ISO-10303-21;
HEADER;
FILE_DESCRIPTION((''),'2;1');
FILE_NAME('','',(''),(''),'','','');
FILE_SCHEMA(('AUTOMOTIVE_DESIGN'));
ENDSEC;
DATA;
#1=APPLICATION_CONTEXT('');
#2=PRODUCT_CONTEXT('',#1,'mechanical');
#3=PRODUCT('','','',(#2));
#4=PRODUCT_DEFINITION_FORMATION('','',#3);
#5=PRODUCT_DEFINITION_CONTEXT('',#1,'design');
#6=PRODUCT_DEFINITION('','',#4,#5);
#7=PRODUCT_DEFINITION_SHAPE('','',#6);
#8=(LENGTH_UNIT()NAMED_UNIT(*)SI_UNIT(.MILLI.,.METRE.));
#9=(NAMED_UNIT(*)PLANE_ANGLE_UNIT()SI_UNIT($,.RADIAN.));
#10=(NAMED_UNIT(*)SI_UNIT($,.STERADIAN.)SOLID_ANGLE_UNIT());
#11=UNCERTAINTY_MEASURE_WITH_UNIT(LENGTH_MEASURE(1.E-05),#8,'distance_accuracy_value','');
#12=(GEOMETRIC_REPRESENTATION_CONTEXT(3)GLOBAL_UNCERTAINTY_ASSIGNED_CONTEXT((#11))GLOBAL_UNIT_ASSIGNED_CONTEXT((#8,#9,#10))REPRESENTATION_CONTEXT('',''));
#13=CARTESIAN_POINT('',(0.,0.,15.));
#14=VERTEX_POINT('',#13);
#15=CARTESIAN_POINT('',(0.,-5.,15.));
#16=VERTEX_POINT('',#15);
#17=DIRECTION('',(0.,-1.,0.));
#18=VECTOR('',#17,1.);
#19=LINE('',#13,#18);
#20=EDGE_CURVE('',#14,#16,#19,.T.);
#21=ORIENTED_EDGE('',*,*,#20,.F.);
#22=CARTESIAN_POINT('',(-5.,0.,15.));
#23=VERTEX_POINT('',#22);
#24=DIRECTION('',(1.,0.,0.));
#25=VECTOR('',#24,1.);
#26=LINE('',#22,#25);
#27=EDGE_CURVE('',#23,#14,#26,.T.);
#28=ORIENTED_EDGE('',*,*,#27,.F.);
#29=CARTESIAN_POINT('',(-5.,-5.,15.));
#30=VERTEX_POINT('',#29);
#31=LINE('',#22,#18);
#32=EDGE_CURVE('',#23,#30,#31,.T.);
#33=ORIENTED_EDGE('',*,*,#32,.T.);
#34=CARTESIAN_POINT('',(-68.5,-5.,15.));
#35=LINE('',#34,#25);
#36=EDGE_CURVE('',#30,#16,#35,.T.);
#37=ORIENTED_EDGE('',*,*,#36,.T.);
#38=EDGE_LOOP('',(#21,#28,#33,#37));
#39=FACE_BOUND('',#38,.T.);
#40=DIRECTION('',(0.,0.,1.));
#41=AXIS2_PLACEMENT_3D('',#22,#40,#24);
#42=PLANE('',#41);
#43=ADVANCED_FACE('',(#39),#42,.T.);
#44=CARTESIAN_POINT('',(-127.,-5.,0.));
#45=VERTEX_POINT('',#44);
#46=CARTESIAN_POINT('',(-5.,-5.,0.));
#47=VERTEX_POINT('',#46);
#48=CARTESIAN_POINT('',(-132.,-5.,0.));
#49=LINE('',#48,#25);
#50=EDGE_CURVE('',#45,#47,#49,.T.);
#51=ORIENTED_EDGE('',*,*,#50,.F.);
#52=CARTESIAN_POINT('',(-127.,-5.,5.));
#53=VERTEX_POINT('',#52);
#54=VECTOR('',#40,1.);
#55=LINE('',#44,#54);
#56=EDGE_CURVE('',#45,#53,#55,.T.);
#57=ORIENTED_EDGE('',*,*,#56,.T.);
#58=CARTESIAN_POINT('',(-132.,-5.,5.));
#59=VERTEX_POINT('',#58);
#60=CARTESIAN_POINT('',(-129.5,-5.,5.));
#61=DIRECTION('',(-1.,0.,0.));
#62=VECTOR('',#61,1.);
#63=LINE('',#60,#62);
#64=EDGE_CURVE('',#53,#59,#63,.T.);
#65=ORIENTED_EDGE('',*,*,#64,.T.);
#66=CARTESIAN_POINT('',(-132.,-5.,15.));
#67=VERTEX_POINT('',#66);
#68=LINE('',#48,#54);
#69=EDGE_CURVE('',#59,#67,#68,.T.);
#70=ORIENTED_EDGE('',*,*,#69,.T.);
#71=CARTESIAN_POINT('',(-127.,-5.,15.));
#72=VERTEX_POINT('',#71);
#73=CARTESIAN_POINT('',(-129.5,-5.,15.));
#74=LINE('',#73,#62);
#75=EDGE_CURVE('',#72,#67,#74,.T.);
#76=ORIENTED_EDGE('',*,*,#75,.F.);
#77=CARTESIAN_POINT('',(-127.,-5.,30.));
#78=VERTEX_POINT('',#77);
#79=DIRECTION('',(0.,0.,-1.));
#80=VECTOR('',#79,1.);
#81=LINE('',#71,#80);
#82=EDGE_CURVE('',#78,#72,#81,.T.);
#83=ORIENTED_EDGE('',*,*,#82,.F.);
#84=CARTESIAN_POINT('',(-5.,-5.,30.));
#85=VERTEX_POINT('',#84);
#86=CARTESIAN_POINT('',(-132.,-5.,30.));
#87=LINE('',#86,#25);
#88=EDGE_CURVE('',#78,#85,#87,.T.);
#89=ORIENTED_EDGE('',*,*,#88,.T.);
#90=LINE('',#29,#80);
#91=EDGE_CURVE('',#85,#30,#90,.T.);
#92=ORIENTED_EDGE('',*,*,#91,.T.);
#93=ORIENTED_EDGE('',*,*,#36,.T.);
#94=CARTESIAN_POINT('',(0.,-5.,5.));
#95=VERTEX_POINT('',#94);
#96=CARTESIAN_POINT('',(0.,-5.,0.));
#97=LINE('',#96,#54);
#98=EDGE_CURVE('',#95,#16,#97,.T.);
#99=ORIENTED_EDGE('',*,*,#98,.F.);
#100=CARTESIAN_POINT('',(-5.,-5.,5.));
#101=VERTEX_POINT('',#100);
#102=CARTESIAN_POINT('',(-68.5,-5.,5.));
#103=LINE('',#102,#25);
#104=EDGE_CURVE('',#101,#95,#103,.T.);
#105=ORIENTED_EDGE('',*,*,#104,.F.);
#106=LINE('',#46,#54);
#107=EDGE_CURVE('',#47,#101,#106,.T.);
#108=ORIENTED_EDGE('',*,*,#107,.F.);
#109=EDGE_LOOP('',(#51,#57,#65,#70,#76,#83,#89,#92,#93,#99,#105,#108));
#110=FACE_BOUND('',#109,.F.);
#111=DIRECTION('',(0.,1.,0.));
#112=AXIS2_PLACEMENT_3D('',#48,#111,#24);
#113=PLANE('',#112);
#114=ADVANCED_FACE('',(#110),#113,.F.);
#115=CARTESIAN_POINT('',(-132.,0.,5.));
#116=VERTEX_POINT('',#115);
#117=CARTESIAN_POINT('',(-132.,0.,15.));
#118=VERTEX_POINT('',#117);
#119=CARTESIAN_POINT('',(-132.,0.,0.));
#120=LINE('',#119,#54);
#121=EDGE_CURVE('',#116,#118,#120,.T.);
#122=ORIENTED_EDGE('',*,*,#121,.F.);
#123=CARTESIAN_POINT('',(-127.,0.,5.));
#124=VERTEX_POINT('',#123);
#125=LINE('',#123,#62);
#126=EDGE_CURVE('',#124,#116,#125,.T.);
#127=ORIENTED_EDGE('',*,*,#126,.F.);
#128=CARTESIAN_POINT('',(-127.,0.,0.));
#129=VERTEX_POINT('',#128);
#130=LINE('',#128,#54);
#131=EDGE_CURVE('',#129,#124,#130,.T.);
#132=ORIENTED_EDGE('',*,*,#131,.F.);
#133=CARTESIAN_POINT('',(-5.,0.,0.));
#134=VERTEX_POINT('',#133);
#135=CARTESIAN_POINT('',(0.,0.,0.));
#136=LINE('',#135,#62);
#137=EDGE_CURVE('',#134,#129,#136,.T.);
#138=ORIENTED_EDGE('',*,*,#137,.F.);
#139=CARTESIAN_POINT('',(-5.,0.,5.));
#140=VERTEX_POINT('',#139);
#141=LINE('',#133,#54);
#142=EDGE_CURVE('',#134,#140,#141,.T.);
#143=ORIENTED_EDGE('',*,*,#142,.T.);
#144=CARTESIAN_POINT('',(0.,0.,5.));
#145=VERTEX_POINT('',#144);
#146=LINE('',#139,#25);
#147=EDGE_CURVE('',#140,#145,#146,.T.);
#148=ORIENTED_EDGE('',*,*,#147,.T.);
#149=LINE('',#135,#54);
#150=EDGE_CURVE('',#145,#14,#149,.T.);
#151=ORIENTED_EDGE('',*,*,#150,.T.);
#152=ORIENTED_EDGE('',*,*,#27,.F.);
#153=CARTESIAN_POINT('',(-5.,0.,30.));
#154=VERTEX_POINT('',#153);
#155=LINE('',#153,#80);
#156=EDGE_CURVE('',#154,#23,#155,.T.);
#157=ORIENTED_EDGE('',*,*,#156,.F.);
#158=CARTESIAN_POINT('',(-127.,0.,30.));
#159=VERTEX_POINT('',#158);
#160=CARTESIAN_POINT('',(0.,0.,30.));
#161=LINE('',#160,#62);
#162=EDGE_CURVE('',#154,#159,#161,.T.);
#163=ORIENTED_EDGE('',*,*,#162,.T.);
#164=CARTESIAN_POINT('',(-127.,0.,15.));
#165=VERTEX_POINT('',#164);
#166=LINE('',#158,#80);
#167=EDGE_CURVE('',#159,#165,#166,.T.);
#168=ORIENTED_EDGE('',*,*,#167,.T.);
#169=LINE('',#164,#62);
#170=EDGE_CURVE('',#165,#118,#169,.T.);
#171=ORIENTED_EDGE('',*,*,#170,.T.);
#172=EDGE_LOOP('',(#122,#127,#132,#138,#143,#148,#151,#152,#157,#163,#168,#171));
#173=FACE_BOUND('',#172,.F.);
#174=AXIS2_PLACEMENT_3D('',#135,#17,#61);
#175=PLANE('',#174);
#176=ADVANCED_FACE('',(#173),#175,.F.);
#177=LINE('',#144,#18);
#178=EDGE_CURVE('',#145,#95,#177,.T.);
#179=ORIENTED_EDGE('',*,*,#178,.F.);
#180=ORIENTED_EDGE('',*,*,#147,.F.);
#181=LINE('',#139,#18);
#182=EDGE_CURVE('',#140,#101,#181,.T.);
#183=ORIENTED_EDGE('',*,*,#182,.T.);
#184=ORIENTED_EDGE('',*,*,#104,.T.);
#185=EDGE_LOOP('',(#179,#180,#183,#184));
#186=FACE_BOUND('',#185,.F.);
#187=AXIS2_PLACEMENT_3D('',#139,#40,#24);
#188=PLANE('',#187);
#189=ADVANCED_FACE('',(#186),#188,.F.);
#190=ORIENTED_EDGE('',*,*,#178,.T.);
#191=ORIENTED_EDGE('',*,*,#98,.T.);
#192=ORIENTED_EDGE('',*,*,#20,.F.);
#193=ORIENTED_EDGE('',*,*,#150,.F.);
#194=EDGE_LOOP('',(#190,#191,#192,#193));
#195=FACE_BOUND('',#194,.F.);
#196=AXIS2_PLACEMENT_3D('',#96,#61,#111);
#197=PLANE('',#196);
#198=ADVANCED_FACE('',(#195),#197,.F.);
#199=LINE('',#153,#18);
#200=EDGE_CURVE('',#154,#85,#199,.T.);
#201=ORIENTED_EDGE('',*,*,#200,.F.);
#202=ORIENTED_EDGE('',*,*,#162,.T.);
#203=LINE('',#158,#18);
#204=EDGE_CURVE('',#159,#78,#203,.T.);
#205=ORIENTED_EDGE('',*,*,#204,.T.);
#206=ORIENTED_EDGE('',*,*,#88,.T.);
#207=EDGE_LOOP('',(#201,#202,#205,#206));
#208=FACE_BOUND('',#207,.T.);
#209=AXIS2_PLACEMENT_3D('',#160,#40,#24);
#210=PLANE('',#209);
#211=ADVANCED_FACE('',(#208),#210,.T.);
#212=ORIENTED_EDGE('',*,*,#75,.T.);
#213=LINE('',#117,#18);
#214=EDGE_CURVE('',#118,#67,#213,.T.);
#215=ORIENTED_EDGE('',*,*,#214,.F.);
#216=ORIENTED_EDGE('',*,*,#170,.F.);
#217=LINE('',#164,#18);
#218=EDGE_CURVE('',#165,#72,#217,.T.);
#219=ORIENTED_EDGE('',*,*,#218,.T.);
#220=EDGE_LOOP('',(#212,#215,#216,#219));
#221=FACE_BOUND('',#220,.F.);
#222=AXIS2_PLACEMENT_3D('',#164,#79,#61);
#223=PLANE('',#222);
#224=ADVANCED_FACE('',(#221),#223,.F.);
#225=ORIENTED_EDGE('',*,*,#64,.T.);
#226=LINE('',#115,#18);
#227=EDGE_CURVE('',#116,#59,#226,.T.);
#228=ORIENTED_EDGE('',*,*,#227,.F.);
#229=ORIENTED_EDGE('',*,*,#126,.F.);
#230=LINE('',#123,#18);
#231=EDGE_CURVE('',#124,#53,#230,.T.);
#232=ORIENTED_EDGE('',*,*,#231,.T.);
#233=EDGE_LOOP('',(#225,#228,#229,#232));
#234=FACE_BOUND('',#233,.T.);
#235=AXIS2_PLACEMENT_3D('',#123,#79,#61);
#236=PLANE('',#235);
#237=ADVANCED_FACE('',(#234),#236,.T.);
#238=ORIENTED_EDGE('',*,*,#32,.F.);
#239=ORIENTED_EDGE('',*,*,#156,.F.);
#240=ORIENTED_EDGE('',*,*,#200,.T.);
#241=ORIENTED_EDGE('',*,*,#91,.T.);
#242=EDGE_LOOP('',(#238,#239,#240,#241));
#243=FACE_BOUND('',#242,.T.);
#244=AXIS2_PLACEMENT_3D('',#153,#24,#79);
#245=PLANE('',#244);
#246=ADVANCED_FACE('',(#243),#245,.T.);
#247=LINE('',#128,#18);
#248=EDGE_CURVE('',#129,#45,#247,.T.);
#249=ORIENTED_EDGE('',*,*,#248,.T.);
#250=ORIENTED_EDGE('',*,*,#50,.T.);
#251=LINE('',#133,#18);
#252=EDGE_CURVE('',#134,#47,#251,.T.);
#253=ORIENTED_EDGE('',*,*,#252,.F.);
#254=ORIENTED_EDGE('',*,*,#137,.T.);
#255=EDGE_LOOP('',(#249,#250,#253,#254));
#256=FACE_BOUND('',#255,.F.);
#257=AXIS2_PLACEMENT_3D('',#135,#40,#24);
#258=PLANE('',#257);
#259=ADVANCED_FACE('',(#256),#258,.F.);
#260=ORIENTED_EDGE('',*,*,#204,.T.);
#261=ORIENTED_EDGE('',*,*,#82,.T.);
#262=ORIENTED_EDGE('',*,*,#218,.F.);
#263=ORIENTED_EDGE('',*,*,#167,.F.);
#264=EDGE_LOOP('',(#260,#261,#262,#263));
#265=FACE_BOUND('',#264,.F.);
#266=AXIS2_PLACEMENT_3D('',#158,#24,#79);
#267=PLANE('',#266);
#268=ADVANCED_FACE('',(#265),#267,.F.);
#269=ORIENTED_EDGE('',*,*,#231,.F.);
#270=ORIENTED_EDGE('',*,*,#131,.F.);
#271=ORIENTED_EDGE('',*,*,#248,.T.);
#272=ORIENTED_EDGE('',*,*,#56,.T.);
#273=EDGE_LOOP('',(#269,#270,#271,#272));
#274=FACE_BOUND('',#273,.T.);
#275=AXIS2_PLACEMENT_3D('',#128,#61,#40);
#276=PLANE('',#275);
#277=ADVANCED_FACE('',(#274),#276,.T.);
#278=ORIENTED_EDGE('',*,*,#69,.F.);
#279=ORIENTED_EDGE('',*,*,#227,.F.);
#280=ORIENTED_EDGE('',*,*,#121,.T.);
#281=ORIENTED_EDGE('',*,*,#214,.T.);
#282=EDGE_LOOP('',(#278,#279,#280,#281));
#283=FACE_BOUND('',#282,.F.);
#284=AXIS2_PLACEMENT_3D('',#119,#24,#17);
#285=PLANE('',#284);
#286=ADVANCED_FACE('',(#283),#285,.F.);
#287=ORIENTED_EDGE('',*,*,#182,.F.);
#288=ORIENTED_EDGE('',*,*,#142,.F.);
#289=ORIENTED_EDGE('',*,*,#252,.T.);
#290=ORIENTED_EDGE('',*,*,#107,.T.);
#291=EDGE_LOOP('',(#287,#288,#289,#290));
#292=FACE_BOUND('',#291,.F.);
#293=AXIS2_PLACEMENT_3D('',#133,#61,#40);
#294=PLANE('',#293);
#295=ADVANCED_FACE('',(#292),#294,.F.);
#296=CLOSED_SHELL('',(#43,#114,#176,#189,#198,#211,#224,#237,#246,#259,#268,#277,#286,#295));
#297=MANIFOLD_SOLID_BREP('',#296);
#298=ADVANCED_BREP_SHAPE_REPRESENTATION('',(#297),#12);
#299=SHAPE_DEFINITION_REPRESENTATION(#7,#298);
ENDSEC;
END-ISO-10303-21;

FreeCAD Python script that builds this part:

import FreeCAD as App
import Part
import Sketcher
from FreeCAD import Vector

doc = App.newDocument("Part")
body = doc.addObject("PartDesign::Body", "Body")

sketch1 = body.newObject("Sketcher::SketchObject", "Sketch")
sketch1.AttachmentSupport = (doc.getObject("XY_Plane"), [""])
sketch1.MapMode = "FlatFace"
sketch1.addGeometry(Part.LineSegment(Vector(0, -5, 0), Vector(0, 0, 0)), False)
sketch1.addGeometry(Part.LineSegment(Vector(0, 0, 0), Vector(-132, 0, 0)), False)
sketch1.addGeometry(Part.LineSegment(Vector(-132, 0, 0), Vector(-132, -5, 0)), False)
sketch1.addGeometry(Part.LineSegment(Vector(-132, -5, 0), Vector(0, -5, 0)), False)
sketch1.addConstraint(Sketcher.Constraint("Coincident", 0, 2, 1, 1))
sketch1.addConstraint(Sketcher.Constraint("Coincident", 1, 2, 2, 1))
sketch1.addConstraint(Sketcher.Constraint("Coincident", 2, 2, 3, 1))
sketch1.addConstraint(Sketcher.Constraint("Coincident", 3, 2, 0, 1))
sketch1.addConstraint(Sketcher.Constraint("Vertical", 0))
sketch1.addConstraint(Sketcher.Constraint("Horizontal", 1))
sketch1.addConstraint(Sketcher.Constraint("Vertical", 2))
sketch1.addConstraint(Sketcher.Constraint("Horizontal", 3))
sketch1.addConstraint(Sketcher.Constraint("Coincident", 0, 2, -1, 1))
sketch1.addConstraint(Sketcher.Constraint("DistanceX", 1, 2, 1, 1, 132.0))
sketch1.addConstraint(Sketcher.Constraint("DistanceY", 0, 1, 0, 2, 5.0))
pad1 = body.newObject("PartDesign::Pad", "Pad")
pad1.Profile = sketch1
pad1.Length = 30

sketch2 = body.newObject("Sketcher::SketchObject", "Sketch001")
sketch2.AttachmentSupport = (doc.getObject("XZ_Plane"), [""])
sketch2.MapMode = "FlatFace"
sketch2.addGeometry(Part.LineSegment(Vector(-132, 15, 0), Vector(-132, 30, 0)), False)
sketch2.addGeometry(Part.LineSegment(Vector(-132, 30, 0), Vector(-127, 30, 0)), False)
sketch2.addGeometry(Part.LineSegment(Vector(-127, 30, 0), Vector(-127, 15, 0)), False)
sketch2.addGeometry(Part.LineSegment(Vector(-127, 15, 0), Vector(-132, 15, 0)), False)
sketch2.addGeometry(Part.LineSegment(Vector(-5, 15, 0), Vector(-5, 30, 0)), False)
sketch2.addGeometry(Part.LineSegment(Vector(-5, 30, 0), Vector(0, 30, 0)), False)
sketch2.addGeometry(Part.LineSegment(Vector(0, 30, 0), Vector(0, 15, 0)), False)
sketch2.addGeometry(Part.LineSegment(Vector(0, 15, 0), Vector(-5, 15, 0)), False)
sketch2.addGeometry(Part.LineSegment(Vector(-132, 0, 0), Vector(-132, 5, 0)), False)
sketch2.addGeometry(Part.LineSegment(Vector(-132, 5, 0), Vector(-127, 5, 0)), False)
sketch2.addGeometry(Part.LineSegment(Vector(-127, 5, 0), Vector(-127, 0, 0)), False)
sketch2.addGeometry(Part.LineSegment(Vector(-127, 0, 0), Vector(-132, 0, 0)), False)
sketch2.addGeometry(Part.LineSegment(Vector(-5, 5, 0), Vector(0, 5, 0)), False)
sketch2.addGeometry(Part.LineSegment(Vector(0, 5, 0), Vector(0, 0, 0)), False)
sketch2.addGeometry(Part.LineSegment(Vector(0, 0, 0), Vector(-5, 0, 0)), False)
sketch2.addGeometry(Part.LineSegment(Vector(-5, 0, 0), Vector(-5, 5, 0)), False)
sketch2.addConstraint(Sketcher.Constraint("Coincident", 0, 2, 1, 1))
sketch2.addConstraint(Sketcher.Constraint("Coincident", 1, 2, 2, 1))
sketch2.addConstraint(Sketcher.Constraint("Coincident", 2, 2, 3, 1))
sketch2.addConstraint(Sketcher.Constraint("Coincident", 3, 2, 0, 1))
sketch2.addConstraint(Sketcher.Constraint("Coincident", 4, 2, 5, 1))
sketch2.addConstraint(Sketcher.Constraint("Coincident", 5, 2, 6, 1))
sketch2.addConstraint(Sketcher.Constraint("Coincident", 6, 2, 7, 1))
sketch2.addConstraint(Sketcher.Constraint("Coincident", 7, 2, 4, 1))
sketch2.addConstraint(Sketcher.Constraint("Coincident", 8, 2, 9, 1))
sketch2.addConstraint(Sketcher.Constraint("Coincident", 9, 2, 10, 1))
sketch2.addConstraint(Sketcher.Constraint("Coincident", 10, 2, 11, 1))
sketch2.addConstraint(Sketcher.Constraint("Coincident", 11, 2, 8, 1))
sketch2.addConstraint(Sketcher.Constraint("Coincident", 12, 2, 13, 1))
sketch2.addConstraint(Sketcher.Constraint("Coincident", 13, 2, 14, 1))
sketch2.addConstraint(Sketcher.Constraint("Coincident", 14, 2, 15, 1))
sketch2.addConstraint(Sketcher.Constraint("Coincident", 15, 2, 12, 1))
sketch2.addConstraint(Sketcher.Constraint("Vertical", 0))
sketch2.addConstraint(Sketcher.Constraint("Horizontal", 1))
sketch2.addConstraint(Sketcher.Constraint("Vertical", 2))
sketch2.addConstraint(Sketcher.Constraint("Horizontal", 3))
sketch2.addConstraint(Sketcher.Constraint("Vertical", 4))
sketch2.addConstraint(Sketcher.Constraint("Horizontal", 5))
sketch2.addConstraint(Sketcher.Constraint("Vertical", 6))
sketch2.addConstraint(Sketcher.Constraint("Horizontal", 7))
sketch2.addConstraint(Sketcher.Constraint("Vertical", 8))
sketch2.addConstraint(Sketcher.Constraint("Horizontal", 9))
sketch2.addConstraint(Sketcher.Constraint("Vertical", 10))
sketch2.addConstraint(Sketcher.Constraint("Horizontal", 11))
sketch2.addConstraint(Sketcher.Constraint("Horizontal", 12))
sketch2.addConstraint(Sketcher.Constraint("Vertical", 13))
sketch2.addConstraint(Sketcher.Constraint("Horizontal", 14))
sketch2.addConstraint(Sketcher.Constraint("Vertical", 15))
sketch2.addConstraint(Sketcher.Constraint("Coincident", 13, 2, -1, 1))
sketch2.addConstraint(Sketcher.Constraint("PointOnObject", 5, 2, -2))
sketch2.addConstraint(Sketcher.Constraint("PointOnObject", 10, 2, -1))
sketch2.addConstraint(Sketcher.Constraint("Horizontal", 1, 2, 4, 2))
sketch2.addConstraint(Sketcher.Constraint("Horizontal", 3, 2, 6, 2))
sketch2.addConstraint(Sketcher.Constraint("Horizontal", 9, 2, 12, 2))
sketch2.addConstraint(Sketcher.Constraint("Vertical", 3, 2, 8, 2))
sketch2.addConstraint(Sketcher.Constraint("Vertical", 2, 2, 9, 2))
sketch2.addConstraint(Sketcher.Constraint("Vertical", 7, 2, 14, 2))
sketch2.addConstraint(Sketcher.Constraint("Equal", 3, 5))
sketch2.addConstraint(Sketcher.Constraint("Equal", 14, 8))
sketch2.addConstraint(Sketcher.Constraint("DistanceX", 1, 1, 1, 2, 5.0))
sketch2.addConstraint(Sketcher.Constraint("DistanceY", 0, 1, 0, 2, 15.0))
sketch2.addConstraint(Sketcher.Constraint("DistanceY", -1, 1, 2, 2, 15.0))
sketch2.addConstraint(Sketcher.Constraint("DistanceX", 0, 2, -1, 1, 132.0))
pocket1 = body.newObject("PartDesign::Pocket", "Pocket")
pocket1.Profile = sketch2
pocket1.Length = 10
pocket1.Reversed = True

doc.recompute()
